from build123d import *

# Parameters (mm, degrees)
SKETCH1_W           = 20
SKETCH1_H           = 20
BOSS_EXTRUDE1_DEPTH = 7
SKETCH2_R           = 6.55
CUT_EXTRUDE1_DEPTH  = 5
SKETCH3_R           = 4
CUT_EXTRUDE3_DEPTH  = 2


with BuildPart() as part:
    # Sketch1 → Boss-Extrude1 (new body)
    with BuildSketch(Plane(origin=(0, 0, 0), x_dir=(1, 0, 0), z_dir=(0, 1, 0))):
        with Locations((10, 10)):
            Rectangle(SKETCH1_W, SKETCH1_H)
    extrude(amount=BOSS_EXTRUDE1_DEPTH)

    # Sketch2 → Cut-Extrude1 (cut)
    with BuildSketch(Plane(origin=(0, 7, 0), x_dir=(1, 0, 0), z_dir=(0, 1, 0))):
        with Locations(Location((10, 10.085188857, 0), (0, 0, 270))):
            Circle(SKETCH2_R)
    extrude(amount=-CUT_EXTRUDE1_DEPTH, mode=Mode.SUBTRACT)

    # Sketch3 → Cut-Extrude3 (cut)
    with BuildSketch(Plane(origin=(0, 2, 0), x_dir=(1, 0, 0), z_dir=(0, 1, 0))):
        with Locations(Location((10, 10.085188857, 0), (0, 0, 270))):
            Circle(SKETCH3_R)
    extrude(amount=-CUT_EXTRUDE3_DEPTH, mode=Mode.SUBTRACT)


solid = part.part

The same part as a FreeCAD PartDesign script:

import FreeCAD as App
import Part
import Sketcher

doc = App.newDocument("Part")
body = doc.addObject("PartDesign::Body", "Body")

# Sketch on XZ plane
sketch1 = body.newObject("Sketcher::SketchObject", "Sketch")
sketch1.AttachmentSupport = (doc.getObject("XZ_Plane"), [""])
sketch1.MapMode = "FlatFace"
sketch1.addGeometry(Part.LineSegment(App.Vector(0, -20, 0), App.Vector(0, 0, 0)), False)
sketch1.addGeometry(Part.LineSegment(App.Vector(0, 0, 0), App.Vector(20, 0, 0)), False)
sketch1.addGeometry(Part.LineSegment(App.Vector(20, 0, 0), App.Vector(20, -20, 0)), False)
sketch1.addGeometry(Part.LineSegment(App.Vector(20, -20, 0), App.Vector(0, -20, 0)), False)
sketch1.addConstraint(Sketcher.Constraint("Coincident", 0, 2, 1, 1))
sketch1.addConstraint(Sketcher.Constraint("Coincident", 1, 2, 2, 1))
sketch1.addConstraint(Sketcher.Constraint("Coincident", 2, 2, 3, 1))
sketch1.addConstraint(Sketcher.Constraint("Coincident", 3, 2, 0, 1))
sketch1.addConstraint(Sketcher.Constraint("Vertical", 0))
sketch1.addConstraint(Sketcher.Constraint("Horizontal", 1))
sketch1.addConstraint(Sketcher.Constraint("Vertical", 2))
sketch1.addConstraint(Sketcher.Constraint("Horizontal", 3))
sketch1.addConstraint(Sketcher.Constraint("Coincident", 0, 2, -1, 1))
sketch1.addConstraint(Sketcher.Constraint("Equal", 3, 0))
sketch1.addConstraint(Sketcher.Constraint("DistanceX", 1, 1, 1, 2, 20.0))
pad1 = body.newObject("PartDesign::Pad", "Pad")
pad1.Profile = sketch1
pad1.Length = 7
pad1.Reversed = True

# Sketch on XZ plane
sketch2 = body.newObject("Sketcher::SketchObject", "Sketch001")
sketch2.AttachmentSupport = (doc.getObject("XZ_Plane"), [""])
sketch2.MapMode = "FlatFace"
sketch2.AttachmentOffset = App.Placement(App.Vector(0, 0, -7), App.Rotation())
sketch2.addGeometry(Part.Circle(App.Vector(10, -10, 0), App.Vector(0, 0, 1), 7), False)
sketch2.addConstraint(Sketcher.Constraint("Diameter", 0, 13.1))
sketch2.addConstraint(Sketcher.Constraint("DistanceX", -1, 1, 0, 3, 10.0))
sketch2.addConstraint(Sketcher.Constraint("DistanceY", 0, 3, -1, 1, 10.085189))
pocket1 = body.newObject("PartDesign::Pocket", "Pocket")
pocket1.Profile = sketch2
pocket1.Length = 5
pocket1.Reversed = True

# Sketch on XZ plane
sketch3 = body.newObject("Sketcher::SketchObject", "Sketch002")
sketch3.AttachmentSupport = (doc.getObject("XZ_Plane"), [""])
sketch3.MapMode = "FlatFace"
sketch3.AttachmentOffset = App.Placement(App.Vector(0, 0, -2), App.Rotation())
sketch3.addGeometry(Part.Circle(App.Vector(10, -10.1, 0), App.Vector(0, 0, 1), 4), False)
sketch3.addConstraint(Sketcher.Constraint("Diameter", 0, 8.0))
sketch3.addConstraint(Sketcher.Constraint("DistanceX", -1, 1, 0, 3, 10.0))
sketch3.addConstraint(Sketcher.Constraint("DistanceY", 0, 3, -1, 1, 10.085189))
pocket2 = body.newObject("PartDesign::Pocket", "Pocket001")
pocket2.Profile = sketch3
pocket2.Length = 2
pocket2.Reversed = True

doc.recompute()
